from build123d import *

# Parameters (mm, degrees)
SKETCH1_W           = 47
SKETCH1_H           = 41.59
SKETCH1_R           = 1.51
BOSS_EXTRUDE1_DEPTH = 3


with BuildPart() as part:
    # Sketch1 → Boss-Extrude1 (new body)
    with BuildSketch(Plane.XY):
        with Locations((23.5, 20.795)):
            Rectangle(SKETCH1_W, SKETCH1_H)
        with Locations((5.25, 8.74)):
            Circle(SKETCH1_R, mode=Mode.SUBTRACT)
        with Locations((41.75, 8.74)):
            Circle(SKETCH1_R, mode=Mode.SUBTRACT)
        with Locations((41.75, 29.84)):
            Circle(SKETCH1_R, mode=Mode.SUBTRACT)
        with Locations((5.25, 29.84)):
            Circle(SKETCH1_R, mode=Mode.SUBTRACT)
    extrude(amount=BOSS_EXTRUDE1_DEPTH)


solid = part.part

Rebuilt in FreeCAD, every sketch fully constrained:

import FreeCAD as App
import Part
import Sketcher

V = App.Vector
Q = App.Units.Quantity

doc = App.newDocument("Part")
params = doc.addObject("Spreadsheet::Sheet", "Params")
for row, (alias, value) in enumerate([
    ("sketch1_diameter", "3.02 mm"),
    ("sketch1_width", "47 mm"),
    ("sketch1_height", "41.59 mm"),
    ("pad1_length", "3 mm"),
], start=1):
    params.set(f"A{row}", alias)
    params.set(f"B{row}", "=" + value)
    params.setAlias(f"B{row}", alias)

body = doc.addObject("PartDesign::Body", "Body")

# Sketch on XY plane
sketch1 = body.newObject("Sketcher::SketchObject", "Sketch")
sketch1.AttachmentSupport = (doc.getObject("XY_Plane"), [""])
sketch1.MapMode = "FlatFace"
sketch1.addGeometry(Part.LineSegment(V(0, 41.6, 0), V(0, 0, 0)), False)
sketch1.addGeometry(Part.LineSegment(V(0, 0, 0), V(47, 0, 0)), False)
sketch1.addGeometry(Part.LineSegment(V(47, 0, 0), V(47, 41.6, 0)), False)
sketch1.addGeometry(Part.LineSegment(V(47, 41.6, 0), V(0, 41.6, 0)), False)
sketch1.addGeometry(Part.Circle(V(5.2, 8.7, 0), V(0, 0, 1), 1.5), False)
sketch1.addGeometry(Part.Circle(V(41.8, 8.7, 0), V(0, 0, 1), 1.5), False)
sketch1.addGeometry(Part.Circle(V(5.2, 29.8, 0), V(0, 0, 1), 1.5), False)
sketch1.addGeometry(Part.Circle(V(41.8, 29.8, 0), V(0, 0, 1), 1.5), False)
sketch1.addConstraint(Sketcher.Constraint("Coincident", 0, 2, 1, 1))
sketch1.addConstraint(Sketcher.Constraint("Coincident", 1, 2, 2, 1))
sketch1.addConstraint(Sketcher.Constraint("Coincident", 2, 2, 3, 1))
sketch1.addConstraint(Sketcher.Constraint("Coincident", 3, 2, 0, 1))
sketch1.addConstraint(Sketcher.Constraint("Vertical", 0))
sketch1.addConstraint(Sketcher.Constraint("Horizontal", 1))
sketch1.addConstraint(Sketcher.Constraint("Vertical", 2))
sketch1.addConstraint(Sketcher.Constraint("Horizontal", 3))
sketch1.addConstraint(Sketcher.Constraint("Coincident", 0, 2, -1, 1))
sketch1.addConstraint(Sketcher.Constraint("Equal", 4, 5))
sketch1.addConstraint(Sketcher.Constraint("Equal", 5, 6))
sketch1.addConstraint(Sketcher.Constraint("Equal", 6, 7))
sketch1.addConstraint(Sketcher.Constraint("Horizontal", 4, 3, 5, 3))
sketch1.addConstraint(Sketcher.Constraint("Horizontal", 6, 3, 7, 3))
sketch1.addConstraint(Sketcher.Constraint("Vertical", 4, 3, 6, 3))
sketch1.addConstraint(Sketcher.Constraint("Vertical", 5, 3, 7, 3))
sketch1.addConstraint(Sketcher.Constraint("Diameter", 4, Q("3.02 mm")))
sketch1.addConstraint(Sketcher.Constraint("DistanceX", 1, 1, 1, 2, Q("47 mm")))
sketch1.addConstraint(Sketcher.Constraint("DistanceY", 0, 2, 0, 1, Q("41.59 mm")))
sketch1.addConstraint(Sketcher.Constraint("DistanceX", 4, 3, 5, 3, Q("36.5 mm")))
sketch1.addConstraint(Sketcher.Constraint("DistanceY", 4, 3, 6, 3, Q("21.1 mm")))
sketch1.addConstraint(Sketcher.Constraint("DistanceX", -1, 1, 4, 3, Q("5.25 mm")))
sketch1.addConstraint(Sketcher.Constraint("DistanceY", -1, 1, 4, 3, Q("8.74 mm")))
sketch1.setExpression("Constraints[16]", "Params.sketch1_diameter")
sketch1.setExpression("Constraints[17]", "Params.sketch1_width")
sketch1.setExpression("Constraints[18]", "Params.sketch1_height")
pad1 = body.newObject("PartDesign::Pad", "Pad")
pad1.Profile = sketch1
pad1.setExpression("Length", "Params.pad1_length")

doc.recompute()
